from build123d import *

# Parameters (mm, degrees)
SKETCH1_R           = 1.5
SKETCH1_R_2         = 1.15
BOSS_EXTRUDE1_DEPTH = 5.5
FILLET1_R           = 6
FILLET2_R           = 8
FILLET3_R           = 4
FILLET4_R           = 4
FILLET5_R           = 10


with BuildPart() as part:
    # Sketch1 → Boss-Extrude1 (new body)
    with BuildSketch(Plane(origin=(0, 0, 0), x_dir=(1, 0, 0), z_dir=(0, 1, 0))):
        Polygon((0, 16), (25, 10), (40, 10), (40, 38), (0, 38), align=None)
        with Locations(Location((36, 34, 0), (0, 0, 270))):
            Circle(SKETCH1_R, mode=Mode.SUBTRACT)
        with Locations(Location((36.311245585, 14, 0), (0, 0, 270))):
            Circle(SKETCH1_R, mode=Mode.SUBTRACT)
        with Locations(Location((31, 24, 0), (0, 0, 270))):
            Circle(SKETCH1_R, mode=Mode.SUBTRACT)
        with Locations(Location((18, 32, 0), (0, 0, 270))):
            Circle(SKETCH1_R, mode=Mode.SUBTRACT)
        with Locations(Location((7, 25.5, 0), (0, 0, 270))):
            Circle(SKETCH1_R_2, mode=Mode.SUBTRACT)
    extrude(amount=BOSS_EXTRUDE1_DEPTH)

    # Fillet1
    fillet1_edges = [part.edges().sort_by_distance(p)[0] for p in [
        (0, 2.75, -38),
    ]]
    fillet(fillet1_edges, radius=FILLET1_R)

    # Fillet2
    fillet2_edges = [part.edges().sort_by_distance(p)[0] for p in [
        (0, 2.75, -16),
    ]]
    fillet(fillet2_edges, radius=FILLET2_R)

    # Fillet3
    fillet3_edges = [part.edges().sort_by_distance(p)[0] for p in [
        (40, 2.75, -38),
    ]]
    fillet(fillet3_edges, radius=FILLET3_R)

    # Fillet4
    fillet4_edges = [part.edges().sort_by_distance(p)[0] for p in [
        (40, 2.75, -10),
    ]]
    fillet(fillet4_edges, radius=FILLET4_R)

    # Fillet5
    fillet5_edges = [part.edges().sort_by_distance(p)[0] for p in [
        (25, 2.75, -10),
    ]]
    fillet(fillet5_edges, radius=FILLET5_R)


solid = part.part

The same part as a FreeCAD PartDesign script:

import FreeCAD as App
import Part
import Sketcher
from FreeCAD import Vector


def edges_at(feature, points):
    """Names of the edges that pass closest to the given points."""
    edges = feature.Shape.Edges
    near = lambda p: min(range(len(edges)), key=lambda i: edges[i].distToShape(Part.Vertex(*p))[0])
    return sorted({f"Edge{near(p) + 1}" for p in points})


def add_polygon(sketch, points):
    """Adds a closed chain of lines whose ends are joined by coincident constraints."""
    first, n = sketch.GeometryCount, len(points)
    for a, b in zip(points, points[1:] + points[:1]):
        sketch.addGeometry(Part.LineSegment(App.Vector(*a, 0), App.Vector(*b, 0)), False)
    for i in range(n):
        sketch.addConstraint(Sketcher.Constraint("Coincident", first + i, 2, first + (i + 1) % n, 1))

doc = App.newDocument("Part")
params = doc.addObject("Spreadsheet::Sheet", "Params")
for row, (alias, value) in enumerate([
    ("sketch1_diameter", "3 mm"),
    ("sketch1_diameter2", "2.3 mm"),
    ("sketch1_width", "15 mm"),
    ("sketch1_width2", "40 mm"),
    ("sketch1_height", "28 mm"),
    ("pad1_length", "5.5 mm"),
    ("fillet_radius", "6 mm"),
    ("fillet2_radius", "8 mm"),
    ("fillet3_radius", "4 mm"),
    ("fillet4_radius", "4 mm"),
    ("fillet5_radius", "10 mm"),
], start=1):
    params.set(f"A{row}", alias)
    params.set(f"B{row}", "=" + value)
    params.setAlias(f"B{row}", alias)

body = doc.addObject("PartDesign::Body", "Body")

# Sketch on XZ plane
sketch1 = body.newObject("Sketcher::SketchObject", "Sketch")
sketch1.AttachmentSupport = (doc.getObject("XZ_Plane"), [""])
sketch1.MapMode = "FlatFace"
add_polygon(sketch1, [(0, -16), (25, -10), (40, -10), (40, -38), (0, -38)])  # lines 0-4
sketch1.addGeometry(Part.Circle(Vector(36.311246, -14, 0), Vector(0, 0, 1), 1.5), False)  # 5
sketch1.addGeometry(Part.Circle(Vector(7, -25.5, 0), Vector(0, 0, 1), 1.15), False)  # 6
sketch1.addGeometry(Part.Circle(Vector(18, -32, 0), Vector(0, 0, 1), 1.5), False)  # 7
sketch1.addGeometry(Part.Circle(Vector(31, -24, 0), Vector(0, 0, 1), 1.5), False)  # 8
sketch1.addGeometry(Part.Circle(Vector(36, -34, 0), Vector(0, 0, 1), 1.5), False)  # 9
sketch1.addConstraint([
    Sketcher.Constraint("Horizontal", 1),
    Sketcher.Constraint("Vertical", 2),
    Sketcher.Constraint("Horizontal", 3),
    Sketcher.Constraint("Vertical", 4),
    Sketcher.Constraint("Equal", 5, 7),
    Sketcher.Constraint("Equal", 7, 8),
    Sketcher.Constraint("Equal", 8, 9),
    Sketcher.Constraint("PointOnObject", 3, 2, -2),
    Sketcher.Constraint("Diameter", 5, 3.0),
    Sketcher.Constraint("Diameter", 6, 2.3),
    Sketcher.Constraint("DistanceX", 1, 1, 1, 2, 15.0),
    Sketcher.Constraint("DistanceX", 3, 2, 3, 1, 40.0),
    Sketcher.Constraint("DistanceY", 2, 2, 2, 1, 28.0),
    Sketcher.Constraint("DistanceY", 4, 1, 4, 2, 22.0),
    Sketcher.Constraint("DistanceY", 5, 3, -1, 1, 14.0),
    Sketcher.Constraint("DistanceX", -1, 1, 6, 3, 7.0),
    Sketcher.Constraint("DistanceX", -1, 1, 7, 3, 18.0),
    Sketcher.Constraint("DistanceY", 7, 3, -1, 1, 32.0),
    Sketcher.Constraint("DistanceX", -1, 1, 8, 3, 31.0),
    Sketcher.Constraint("DistanceY", 8, 3, -1, 1, 24.0),
    Sketcher.Constraint("DistanceX", -1, 1, 9, 3, 36.0),
    Sketcher.Constraint("DistanceY", 9, 3, -1, 1, 34.0),
    Sketcher.Constraint("DistanceY", 0, 2, -1, 1, 10.0),
    Sketcher.Constraint("DistanceY", 6, 3, -1, 1, 25.5),
    Sketcher.Constraint("DistanceX", -1, 1, 5, 3, 36.311246),
])
sketch1.setExpression("Constraints[13]", "Params.sketch1_diameter")
sketch1.setExpression("Constraints[14]", "Params.sketch1_diameter2")
sketch1.setExpression("Constraints[15]", "Params.sketch1_width")
sketch1.setExpression("Constraints[16]", "Params.sketch1_width2")
sketch1.setExpression("Constraints[17]", "Params.sketch1_height")
pad1 = body.newObject("PartDesign::Pad", "Pad")
pad1.Profile = sketch1
pad1.setExpression("Length", "Params.pad1_length")
pad1.Reversed = True
doc.recompute()

fillet = body.newObject("PartDesign::Fillet", "Fillet")
fillet.Base = (pad1, edges_at(pad1, [(0, 2.75, -38)]))
fillet.setExpression("Radius", "Params.fillet_radius")
doc.recompute()

fillet2 = body.newObject("PartDesign::Fillet", "Fillet001")
fillet2.Base = (fillet, edges_at(fillet, [(0, 2.75, -16)]))
fillet2.setExpression("Radius", "Params.fillet2_radius")
doc.recompute()

fillet3 = body.newObject("PartDesign::Fillet", "Fillet002")
fillet3.Base = (fillet2, edges_at(fillet2, [(40, 2.75, -38)]))
fillet3.setExpression("Radius", "Params.fillet3_radius")
doc.recompute()

fillet4 = body.newObject("PartDesign::Fillet", "Fillet003")
fillet4.Base = (fillet3, edges_at(fillet3, [(40, 2.75, -10)]))
fillet4.setExpression("Radius", "Params.fillet4_radius")
doc.recompute()

fillet5 = body.newObject("PartDesign::Fillet", "Fillet004")
fillet5.Base = (fillet4, edges_at(fillet4, [(25, 2.75, -10)]))
fillet5.setExpression("Radius", "Params.fillet5_radius")

doc.recompute()
